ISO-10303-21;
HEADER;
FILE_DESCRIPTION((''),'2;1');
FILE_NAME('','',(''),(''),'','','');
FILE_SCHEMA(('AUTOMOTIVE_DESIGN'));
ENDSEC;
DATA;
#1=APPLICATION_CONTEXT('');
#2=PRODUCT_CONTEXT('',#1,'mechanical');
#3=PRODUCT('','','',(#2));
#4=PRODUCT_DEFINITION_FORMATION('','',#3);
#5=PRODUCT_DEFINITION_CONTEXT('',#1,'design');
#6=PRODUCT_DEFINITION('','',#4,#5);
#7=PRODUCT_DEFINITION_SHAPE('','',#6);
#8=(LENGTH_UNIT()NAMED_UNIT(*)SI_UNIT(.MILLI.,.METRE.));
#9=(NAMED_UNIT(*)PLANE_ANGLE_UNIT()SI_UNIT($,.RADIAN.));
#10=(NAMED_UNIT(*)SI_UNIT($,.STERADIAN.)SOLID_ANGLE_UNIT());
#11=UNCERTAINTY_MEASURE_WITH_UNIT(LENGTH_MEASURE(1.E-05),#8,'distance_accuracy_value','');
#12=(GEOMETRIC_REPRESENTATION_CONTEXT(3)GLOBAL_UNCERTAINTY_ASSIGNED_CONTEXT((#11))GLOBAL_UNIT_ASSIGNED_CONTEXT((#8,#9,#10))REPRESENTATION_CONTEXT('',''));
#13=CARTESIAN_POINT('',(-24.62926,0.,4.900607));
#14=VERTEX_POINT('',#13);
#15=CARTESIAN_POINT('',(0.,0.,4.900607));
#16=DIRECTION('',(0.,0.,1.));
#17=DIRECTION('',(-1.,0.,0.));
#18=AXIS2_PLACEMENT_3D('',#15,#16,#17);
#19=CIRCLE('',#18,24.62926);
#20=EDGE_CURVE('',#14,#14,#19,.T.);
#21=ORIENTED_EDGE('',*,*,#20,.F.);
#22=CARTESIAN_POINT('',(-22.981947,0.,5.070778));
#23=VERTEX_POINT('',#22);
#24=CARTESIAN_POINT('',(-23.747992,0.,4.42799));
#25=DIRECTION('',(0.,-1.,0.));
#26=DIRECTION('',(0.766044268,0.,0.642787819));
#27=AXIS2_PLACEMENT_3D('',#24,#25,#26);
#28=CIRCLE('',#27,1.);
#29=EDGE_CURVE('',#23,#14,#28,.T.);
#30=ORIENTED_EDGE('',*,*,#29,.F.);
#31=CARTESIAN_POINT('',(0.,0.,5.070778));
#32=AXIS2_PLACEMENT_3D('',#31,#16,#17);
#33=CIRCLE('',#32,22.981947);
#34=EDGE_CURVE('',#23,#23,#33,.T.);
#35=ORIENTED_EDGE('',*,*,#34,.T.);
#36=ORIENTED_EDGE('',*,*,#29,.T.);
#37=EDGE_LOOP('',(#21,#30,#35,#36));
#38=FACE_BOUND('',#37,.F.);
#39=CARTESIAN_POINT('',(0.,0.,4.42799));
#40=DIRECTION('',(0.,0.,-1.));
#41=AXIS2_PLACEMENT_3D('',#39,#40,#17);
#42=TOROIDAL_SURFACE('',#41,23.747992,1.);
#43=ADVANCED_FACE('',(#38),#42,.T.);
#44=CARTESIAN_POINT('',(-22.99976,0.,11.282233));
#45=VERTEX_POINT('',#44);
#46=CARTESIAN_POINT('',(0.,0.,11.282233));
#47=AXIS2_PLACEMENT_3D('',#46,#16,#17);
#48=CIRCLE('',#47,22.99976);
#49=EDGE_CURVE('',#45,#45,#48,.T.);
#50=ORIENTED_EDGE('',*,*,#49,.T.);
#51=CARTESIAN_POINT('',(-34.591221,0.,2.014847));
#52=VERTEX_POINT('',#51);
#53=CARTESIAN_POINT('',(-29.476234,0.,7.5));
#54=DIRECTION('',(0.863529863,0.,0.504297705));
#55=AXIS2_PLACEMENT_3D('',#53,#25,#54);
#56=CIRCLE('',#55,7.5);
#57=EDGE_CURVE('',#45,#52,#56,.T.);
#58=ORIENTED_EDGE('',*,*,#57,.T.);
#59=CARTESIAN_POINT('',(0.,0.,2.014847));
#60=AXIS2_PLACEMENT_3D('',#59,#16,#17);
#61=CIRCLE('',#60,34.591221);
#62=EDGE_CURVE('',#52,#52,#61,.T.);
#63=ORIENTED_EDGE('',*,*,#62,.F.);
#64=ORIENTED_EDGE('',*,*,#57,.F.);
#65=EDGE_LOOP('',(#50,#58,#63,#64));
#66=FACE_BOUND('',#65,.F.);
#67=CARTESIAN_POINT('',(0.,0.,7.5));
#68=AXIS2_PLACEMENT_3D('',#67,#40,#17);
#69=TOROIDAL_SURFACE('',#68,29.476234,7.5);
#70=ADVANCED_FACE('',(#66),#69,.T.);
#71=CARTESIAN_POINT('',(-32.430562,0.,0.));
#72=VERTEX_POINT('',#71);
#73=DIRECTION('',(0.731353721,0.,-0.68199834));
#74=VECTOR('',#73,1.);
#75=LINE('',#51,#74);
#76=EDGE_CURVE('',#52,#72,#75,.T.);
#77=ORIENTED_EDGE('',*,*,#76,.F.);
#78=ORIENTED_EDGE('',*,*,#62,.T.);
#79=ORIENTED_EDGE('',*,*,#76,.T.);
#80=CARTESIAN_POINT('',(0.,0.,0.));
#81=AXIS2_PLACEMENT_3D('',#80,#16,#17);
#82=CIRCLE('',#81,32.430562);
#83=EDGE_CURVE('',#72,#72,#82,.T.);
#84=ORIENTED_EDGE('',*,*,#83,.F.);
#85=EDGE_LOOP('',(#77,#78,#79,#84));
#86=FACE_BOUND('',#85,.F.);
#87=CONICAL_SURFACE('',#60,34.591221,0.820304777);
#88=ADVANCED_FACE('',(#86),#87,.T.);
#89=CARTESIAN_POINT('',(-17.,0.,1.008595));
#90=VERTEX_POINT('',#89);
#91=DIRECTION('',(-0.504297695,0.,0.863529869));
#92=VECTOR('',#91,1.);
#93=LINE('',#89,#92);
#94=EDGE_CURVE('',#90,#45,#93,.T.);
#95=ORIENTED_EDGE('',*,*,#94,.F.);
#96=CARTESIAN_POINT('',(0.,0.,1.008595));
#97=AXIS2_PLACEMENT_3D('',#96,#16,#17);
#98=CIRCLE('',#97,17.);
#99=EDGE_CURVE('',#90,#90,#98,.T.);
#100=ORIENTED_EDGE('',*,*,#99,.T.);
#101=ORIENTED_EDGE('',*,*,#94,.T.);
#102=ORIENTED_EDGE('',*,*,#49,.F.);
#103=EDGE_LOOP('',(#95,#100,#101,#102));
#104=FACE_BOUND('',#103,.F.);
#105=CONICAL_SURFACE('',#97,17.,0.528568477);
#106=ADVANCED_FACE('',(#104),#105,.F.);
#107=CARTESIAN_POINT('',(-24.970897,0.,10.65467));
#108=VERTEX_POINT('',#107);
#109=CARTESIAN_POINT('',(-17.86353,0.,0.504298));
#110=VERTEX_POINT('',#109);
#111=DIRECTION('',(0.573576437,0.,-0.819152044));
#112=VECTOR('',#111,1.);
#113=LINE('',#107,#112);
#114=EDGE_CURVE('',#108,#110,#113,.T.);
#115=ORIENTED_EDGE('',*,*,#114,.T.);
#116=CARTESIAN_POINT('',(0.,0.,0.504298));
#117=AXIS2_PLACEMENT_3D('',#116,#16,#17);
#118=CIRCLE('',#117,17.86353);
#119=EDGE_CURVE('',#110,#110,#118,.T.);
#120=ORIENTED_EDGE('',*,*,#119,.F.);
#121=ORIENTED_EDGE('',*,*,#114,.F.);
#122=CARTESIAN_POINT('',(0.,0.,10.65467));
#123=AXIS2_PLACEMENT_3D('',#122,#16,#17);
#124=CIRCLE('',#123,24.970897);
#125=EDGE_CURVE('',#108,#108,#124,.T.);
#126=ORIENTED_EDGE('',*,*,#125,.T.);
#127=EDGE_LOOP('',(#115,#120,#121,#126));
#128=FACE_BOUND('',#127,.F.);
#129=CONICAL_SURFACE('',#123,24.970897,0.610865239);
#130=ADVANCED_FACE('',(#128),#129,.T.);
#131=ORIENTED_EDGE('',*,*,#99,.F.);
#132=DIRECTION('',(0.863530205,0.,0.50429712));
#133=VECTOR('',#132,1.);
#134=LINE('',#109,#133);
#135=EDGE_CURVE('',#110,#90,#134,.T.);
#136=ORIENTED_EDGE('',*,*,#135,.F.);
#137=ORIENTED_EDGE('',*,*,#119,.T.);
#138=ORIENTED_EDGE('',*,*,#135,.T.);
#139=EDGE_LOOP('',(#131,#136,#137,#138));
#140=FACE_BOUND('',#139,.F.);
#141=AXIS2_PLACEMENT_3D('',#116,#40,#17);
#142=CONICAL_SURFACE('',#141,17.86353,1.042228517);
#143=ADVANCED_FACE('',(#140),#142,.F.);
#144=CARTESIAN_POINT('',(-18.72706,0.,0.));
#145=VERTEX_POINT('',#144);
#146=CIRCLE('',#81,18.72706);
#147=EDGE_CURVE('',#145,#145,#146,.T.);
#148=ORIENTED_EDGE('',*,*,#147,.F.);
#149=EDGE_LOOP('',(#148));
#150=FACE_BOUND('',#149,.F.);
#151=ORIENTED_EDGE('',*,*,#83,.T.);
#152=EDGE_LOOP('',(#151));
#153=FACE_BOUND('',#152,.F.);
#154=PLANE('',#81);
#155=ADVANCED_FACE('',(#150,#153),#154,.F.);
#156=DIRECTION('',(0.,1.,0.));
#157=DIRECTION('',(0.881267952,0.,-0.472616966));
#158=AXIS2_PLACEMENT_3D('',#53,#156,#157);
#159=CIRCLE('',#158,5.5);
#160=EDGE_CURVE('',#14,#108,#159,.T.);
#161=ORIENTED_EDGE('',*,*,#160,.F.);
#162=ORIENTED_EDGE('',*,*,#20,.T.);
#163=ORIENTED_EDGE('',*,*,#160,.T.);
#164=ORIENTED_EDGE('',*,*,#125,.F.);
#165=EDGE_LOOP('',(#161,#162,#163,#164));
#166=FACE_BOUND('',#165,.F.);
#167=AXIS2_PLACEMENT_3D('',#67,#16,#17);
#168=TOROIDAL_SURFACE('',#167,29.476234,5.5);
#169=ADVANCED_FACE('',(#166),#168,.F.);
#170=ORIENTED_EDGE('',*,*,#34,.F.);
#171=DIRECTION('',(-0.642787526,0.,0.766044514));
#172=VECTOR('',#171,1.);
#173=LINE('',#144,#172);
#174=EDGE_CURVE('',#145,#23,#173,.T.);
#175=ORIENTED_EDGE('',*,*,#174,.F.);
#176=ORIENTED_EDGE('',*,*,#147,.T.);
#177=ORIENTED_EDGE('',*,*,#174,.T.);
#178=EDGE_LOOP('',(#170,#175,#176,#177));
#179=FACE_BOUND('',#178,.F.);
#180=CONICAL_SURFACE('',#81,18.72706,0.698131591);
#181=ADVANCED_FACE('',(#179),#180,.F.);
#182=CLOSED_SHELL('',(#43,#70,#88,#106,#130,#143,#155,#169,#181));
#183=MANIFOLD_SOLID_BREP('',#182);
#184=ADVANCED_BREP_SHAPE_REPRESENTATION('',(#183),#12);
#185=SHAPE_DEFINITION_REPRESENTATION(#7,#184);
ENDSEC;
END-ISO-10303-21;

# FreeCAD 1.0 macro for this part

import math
import FreeCAD as App
import Part
import Sketcher

V = App.Vector
Q = App.Units.Quantity

doc = App.newDocument("Part")
body = doc.addObject("PartDesign::Body", "Body")

sketch1 = body.newObject("Sketcher::SketchObject", "Sketch")
sketch1.AttachmentSupport = (doc.getObject("XZ_Plane"), [""])
sketch1.MapMode = "FlatFace"
sketch1.addGeometry([
    Part.LineSegment(V(-18.7, 0, 0), V(-23, 5.1, 0)),
    Part.ArcOfCircle(Part.Circle(V(-23.7, 4.4, 0), V(0, 0, 1), 1), math.radians(40), math.radians(152)),
    Part.ArcOfCircle(Part.Circle(V(-29.5, 7.5, 0), V(0, 0, 1), 5.5), math.radians(35), math.radians(332)),
    Part.LineSegment(V(-25, 10.7, 0), V(-17.9, 0.5, 0)),
    Part.LineSegment(V(-17.9, 0.5, 0), V(-17, 1, 0)),
    Part.LineSegment(V(-17, 1, 0), V(-23, 11.3, 0)),
    Part.ArcOfCircle(Part.Circle(V(-29.5, 7.5, 0), V(0, 0, 1), 7.5), math.radians(30), math.radians(227)),
    Part.LineSegment(V(-34.6, 2, 0), V(-32.4, 0, 0)),
    Part.LineSegment(V(-32.4, 0, 0), V(-18.7, 0, 0)),
], False)
sketch1.addConstraint([
    Sketcher.Constraint("Tangent", 0, 2, 1, 1),
    Sketcher.Constraint("Tangent", 1, 2, 2, 2),
    Sketcher.Constraint("Tangent", 2, 1, 3, 1),
    Sketcher.Constraint("Coincident", 3, 2, 4, 1),
    Sketcher.Constraint("Coincident", 4, 2, 5, 1),
    Sketcher.Constraint("Tangent", 5, 2, 6, 1),
    Sketcher.Constraint("Tangent", 6, 2, 7, 1),
    Sketcher.Constraint("Coincident", 7, 2, 8, 1),
    Sketcher.Constraint("Coincident", 8, 2, 0, 1),
    Sketcher.Constraint("Horizontal", 8),
    Sketcher.Constraint("Coincident", 6, 3, 2, 3),
    Sketcher.Constraint("PointOnObject", 7, 2, -1),
    Sketcher.Constraint("Perpendicular", 4, 5),
    Sketcher.Constraint("Radius", 1, Q("1 mm")),
    Sketcher.Constraint("Radius", 2, Q("5.5 mm")),
    Sketcher.Constraint("Radius", 6, Q("7.5 mm")),
    Sketcher.Constraint("Angle", 0, Q("129.999994 deg")),
    Sketcher.Constraint("Angle", 3, Q("-55 deg")),
    Sketcher.Constraint("Angle", 7, Q("-42.999998 deg")),
    Sketcher.Constraint("Distance", 4, Q("1 mm")),
    Sketcher.Constraint("DistanceX", 4, 2, -1, 1, Q("17 mm")),
    Sketcher.Constraint("DistanceY", -1, 1, 2, 3, Q("7.5 mm")),
    Sketcher.Constraint("DistanceY", -1, 1, 3, 2, Q("0.504298 mm")),
    Sketcher.Constraint("DistanceX", 1, 2, 5, 2, Q("1.6295 mm")),
])
revolution = body.newObject("PartDesign::Revolution", "Revolution")
revolution.Profile = sketch1
revolution.ReferenceAxis = (sketch1, ["V_Axis"])
revolution.Angle = 360

doc.recompute()
